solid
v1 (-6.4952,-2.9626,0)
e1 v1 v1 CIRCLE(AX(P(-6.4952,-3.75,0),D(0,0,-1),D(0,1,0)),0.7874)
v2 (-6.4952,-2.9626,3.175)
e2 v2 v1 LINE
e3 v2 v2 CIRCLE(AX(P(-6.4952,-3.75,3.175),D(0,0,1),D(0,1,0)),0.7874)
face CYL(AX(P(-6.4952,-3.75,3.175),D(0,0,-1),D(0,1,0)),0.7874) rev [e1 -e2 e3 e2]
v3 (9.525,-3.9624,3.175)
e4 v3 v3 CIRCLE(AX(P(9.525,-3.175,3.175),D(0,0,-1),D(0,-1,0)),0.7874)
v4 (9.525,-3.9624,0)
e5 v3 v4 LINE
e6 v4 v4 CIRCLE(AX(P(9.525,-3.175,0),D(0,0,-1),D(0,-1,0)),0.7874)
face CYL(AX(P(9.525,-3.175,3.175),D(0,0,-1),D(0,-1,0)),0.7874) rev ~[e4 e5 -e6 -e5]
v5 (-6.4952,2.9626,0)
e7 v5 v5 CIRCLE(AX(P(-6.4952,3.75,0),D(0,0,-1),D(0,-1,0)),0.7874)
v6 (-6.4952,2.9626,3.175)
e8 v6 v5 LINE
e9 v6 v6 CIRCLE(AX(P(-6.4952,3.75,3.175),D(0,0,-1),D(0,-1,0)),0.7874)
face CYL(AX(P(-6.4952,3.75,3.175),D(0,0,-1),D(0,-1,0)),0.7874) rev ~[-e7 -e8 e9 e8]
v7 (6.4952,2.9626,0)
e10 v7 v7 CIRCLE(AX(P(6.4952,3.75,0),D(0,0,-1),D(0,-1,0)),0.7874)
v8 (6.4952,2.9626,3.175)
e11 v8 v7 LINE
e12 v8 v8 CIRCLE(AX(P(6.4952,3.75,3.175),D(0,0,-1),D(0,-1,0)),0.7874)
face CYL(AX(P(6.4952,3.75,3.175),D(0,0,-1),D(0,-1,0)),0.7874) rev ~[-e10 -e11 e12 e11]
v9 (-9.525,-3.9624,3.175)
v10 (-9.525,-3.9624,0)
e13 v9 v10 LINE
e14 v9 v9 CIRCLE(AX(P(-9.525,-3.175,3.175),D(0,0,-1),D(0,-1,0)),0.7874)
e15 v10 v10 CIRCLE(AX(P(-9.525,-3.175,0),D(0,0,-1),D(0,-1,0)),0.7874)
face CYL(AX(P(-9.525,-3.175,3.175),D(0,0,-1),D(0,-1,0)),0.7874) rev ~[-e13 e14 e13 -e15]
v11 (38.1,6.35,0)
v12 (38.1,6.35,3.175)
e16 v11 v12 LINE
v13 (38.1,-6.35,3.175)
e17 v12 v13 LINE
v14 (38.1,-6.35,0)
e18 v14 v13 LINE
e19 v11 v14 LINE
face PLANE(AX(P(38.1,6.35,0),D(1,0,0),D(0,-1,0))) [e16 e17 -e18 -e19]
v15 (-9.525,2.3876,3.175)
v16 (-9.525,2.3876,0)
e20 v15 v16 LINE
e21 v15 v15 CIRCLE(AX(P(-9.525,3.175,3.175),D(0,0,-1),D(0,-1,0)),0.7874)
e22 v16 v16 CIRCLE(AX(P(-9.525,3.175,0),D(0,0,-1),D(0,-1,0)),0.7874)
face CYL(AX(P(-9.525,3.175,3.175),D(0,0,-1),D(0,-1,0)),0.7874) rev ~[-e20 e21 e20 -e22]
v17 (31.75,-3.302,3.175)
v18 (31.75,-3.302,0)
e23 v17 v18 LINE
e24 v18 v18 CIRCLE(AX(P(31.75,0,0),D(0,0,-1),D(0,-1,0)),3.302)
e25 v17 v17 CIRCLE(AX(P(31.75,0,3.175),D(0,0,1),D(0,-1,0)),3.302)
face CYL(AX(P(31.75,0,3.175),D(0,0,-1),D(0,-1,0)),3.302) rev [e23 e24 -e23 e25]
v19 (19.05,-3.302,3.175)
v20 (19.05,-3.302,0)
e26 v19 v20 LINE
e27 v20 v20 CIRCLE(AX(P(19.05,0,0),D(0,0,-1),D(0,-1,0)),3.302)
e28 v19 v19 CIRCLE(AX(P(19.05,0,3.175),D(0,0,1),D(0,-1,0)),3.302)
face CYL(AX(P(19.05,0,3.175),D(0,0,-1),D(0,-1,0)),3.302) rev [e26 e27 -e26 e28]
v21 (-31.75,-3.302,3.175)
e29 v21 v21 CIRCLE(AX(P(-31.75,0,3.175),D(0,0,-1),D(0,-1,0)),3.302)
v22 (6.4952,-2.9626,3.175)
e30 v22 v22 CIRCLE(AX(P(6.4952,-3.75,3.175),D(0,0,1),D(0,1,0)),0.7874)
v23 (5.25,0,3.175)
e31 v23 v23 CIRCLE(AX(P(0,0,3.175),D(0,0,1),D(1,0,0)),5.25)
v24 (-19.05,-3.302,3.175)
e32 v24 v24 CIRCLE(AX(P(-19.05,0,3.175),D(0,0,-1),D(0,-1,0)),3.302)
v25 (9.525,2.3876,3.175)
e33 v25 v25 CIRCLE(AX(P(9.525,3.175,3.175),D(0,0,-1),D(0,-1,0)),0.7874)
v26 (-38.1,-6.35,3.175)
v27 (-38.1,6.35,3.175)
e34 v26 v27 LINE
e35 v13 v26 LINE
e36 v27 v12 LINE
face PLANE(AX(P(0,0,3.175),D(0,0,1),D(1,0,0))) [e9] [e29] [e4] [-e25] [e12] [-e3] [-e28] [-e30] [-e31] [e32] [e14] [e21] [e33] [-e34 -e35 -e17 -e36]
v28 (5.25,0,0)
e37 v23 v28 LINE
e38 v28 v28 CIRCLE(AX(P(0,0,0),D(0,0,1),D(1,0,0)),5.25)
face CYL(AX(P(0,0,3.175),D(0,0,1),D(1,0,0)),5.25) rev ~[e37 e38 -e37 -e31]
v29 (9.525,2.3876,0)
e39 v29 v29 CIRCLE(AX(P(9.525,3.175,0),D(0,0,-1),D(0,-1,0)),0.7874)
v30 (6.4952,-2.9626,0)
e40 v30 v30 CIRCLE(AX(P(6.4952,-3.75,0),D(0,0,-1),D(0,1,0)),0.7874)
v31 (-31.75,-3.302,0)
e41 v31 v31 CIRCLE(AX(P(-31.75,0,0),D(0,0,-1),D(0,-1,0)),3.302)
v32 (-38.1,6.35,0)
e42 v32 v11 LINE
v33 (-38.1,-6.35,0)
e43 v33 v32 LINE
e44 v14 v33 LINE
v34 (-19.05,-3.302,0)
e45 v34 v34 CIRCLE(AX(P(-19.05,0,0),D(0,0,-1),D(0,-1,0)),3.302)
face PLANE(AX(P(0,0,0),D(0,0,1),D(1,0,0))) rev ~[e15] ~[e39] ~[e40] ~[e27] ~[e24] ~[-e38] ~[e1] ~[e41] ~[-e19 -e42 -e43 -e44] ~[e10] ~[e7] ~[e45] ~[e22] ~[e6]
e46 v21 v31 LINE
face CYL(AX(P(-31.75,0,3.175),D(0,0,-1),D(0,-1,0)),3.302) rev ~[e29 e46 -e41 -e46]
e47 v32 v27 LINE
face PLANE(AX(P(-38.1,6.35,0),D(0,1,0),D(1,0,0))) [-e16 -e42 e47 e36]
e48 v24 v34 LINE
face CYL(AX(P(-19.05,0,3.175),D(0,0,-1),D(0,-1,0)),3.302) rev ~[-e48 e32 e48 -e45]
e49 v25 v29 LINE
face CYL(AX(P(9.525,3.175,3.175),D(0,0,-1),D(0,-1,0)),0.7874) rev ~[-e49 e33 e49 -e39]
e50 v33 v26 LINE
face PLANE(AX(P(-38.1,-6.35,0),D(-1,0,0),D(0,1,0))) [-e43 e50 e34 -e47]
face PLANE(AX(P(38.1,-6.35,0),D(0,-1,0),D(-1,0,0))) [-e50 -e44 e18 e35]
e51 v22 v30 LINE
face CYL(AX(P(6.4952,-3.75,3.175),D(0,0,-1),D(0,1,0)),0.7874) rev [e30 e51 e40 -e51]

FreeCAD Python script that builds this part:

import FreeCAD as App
import Part
import Sketcher
Q = App.Units.Quantity

doc = App.newDocument("Part")
body = doc.addObject("PartDesign::Body", "Body")

# Sketch on XY plane
sketch1 = doc.addObject("Sketcher::SketchObject", "Sketch")
body.addObject(sketch1)
sketch1.AttachmentSupport = (doc.XY_Plane, [""])
sketch1.MapMode = "FlatFace"
sketch1.addGeometry([
    Part.LineSegment(App.Vector(38.1, 6.35, 0), App.Vector(-38.1, 6.35, 0)),
    Part.LineSegment(App.Vector(-38.1, 6.35, 0), App.Vector(-38.1, -6.35, 0)),
    Part.LineSegment(App.Vector(-38.1, -6.35, 0), App.Vector(38.1, -6.35, 0)),
    Part.LineSegment(App.Vector(38.1, -6.35, 0), App.Vector(38.1, 6.35, 0)),
], False)
sketch1.addConstraint([
    Sketcher.Constraint("Coincident", 0, 2, 1, 1),
    Sketcher.Constraint("Coincident", 1, 2, 2, 1),
    Sketcher.Constraint("Coincident", 2, 2, 3, 1),
    Sketcher.Constraint("Coincident", 3, 2, 0, 1),
    Sketcher.Constraint("Horizontal", 0),
    Sketcher.Constraint("Vertical", 1),
    Sketcher.Constraint("Horizontal", 2),
    Sketcher.Constraint("Vertical", 3),
    Sketcher.Constraint("Symmetric", 0, 2, 2, 2, -1, 1),
    Sketcher.Constraint("DistanceX", 0, 2, 0, 1, Q("3 in")),
    Sketcher.Constraint("DistanceY", 1, 2, 1, 1, Q("0.5 in")),
])
pad1 = doc.addObject("PartDesign::Pad", "Pad")
body.addObject(pad1)
pad1.Profile = sketch1
pad1.Length = Q("0.125 in")

# Sketch on XY plane
sketch2 = doc.addObject("Sketcher::SketchObject", "Sketch001")
body.addObject(sketch2)
sketch2.AttachmentSupport = (doc.XY_Plane, [""])
sketch2.MapMode = "FlatFace"
sketch2.AttachmentOffset = App.Placement(App.Vector(0, 0, 0.125 * 25.4), App.Rotation())
sketch2.addGeometry(Part.Circle(App.Vector(0, 0, 0), App.Vector(0, 0, 1), 5.25), False)
sketch2.addConstraint([
    Sketcher.Constraint("Coincident", 0, 3, -1, 1),
    Sketcher.Constraint("Diameter", 0, 10.5),
])
pocket1 = doc.addObject("PartDesign::Pocket", "Pocket")
body.addObject(pocket1)
pocket1.Profile = sketch2
pocket1.Type = "ThroughAll"

# Sketch on XY plane
sketch3 = doc.addObject("Sketcher::SketchObject", "Sketch002")
body.addObject(sketch3)
sketch3.AttachmentSupport = (doc.XY_Plane, [""])
sketch3.MapMode = "FlatFace"
sketch3.AttachmentOffset = App.Placement(App.Vector(0, 0, 0.125 * 25.4), App.Rotation())
sketch3.addGeometry([
    Part.Circle(App.Vector(-6.4952, 3.75, 0), App.Vector(0, 0, 1), 0.7874),
    Part.Circle(App.Vector(6.4952, 3.75, 0), App.Vector(0, 0, 1), 0.7874),
], False)
sketch3.addConstraint([
    Sketcher.Constraint("Equal", 0, 1),
    Sketcher.Constraint("Symmetric", 0, 3, 1, 3, -2),
    Sketcher.Constraint("Diameter", 0, Q("0.062 in")),
    Sketcher.Constraint("DistanceX", 0, 3, -1, 1, 6.4952),
    Sketcher.Constraint("DistanceY", -1, 1, 0, 3, 3.75),
])
doc.recompute()
hole = doc.addObject("PartDesign::Hole", "Hole")
body.addObject(hole)
hole.Profile = sketch3
hole.ThreadType = "None"
hole.Diameter = Q("0.062 in")
hole.DepthType = "ThroughAll"
doc.recompute()

mirrored = doc.addObject("PartDesign::Mirrored", "Mirrored")
body.addObject(mirrored)
mirrored.Originals = [hole]
mirrored.MirrorPlane = (doc.XZ_Plane, [""])
body.Tip = mirrored

# Sketch on XY plane
sketch4 = doc.addObject("Sketcher::SketchObject", "Sketch003")
body.addObject(sketch4)
sketch4.AttachmentSupport = (doc.XY_Plane, [""])
sketch4.MapMode = "FlatFace"
sketch4.AttachmentOffset = App.Placement(App.Vector(0, 0, 0.125 * 25.4), App.Rotation())
sketch4.addGeometry([
    Part.Circle(App.Vector(-31.75, 0, 0), App.Vector(0, 0, 1), 3.302),
    Part.Circle(App.Vector(-19.05, 0, 0), App.Vector(0, 0, 1), 3.302),
], False)
sketch4.addConstraint([
    Sketcher.Constraint("Equal", 0, 1),
    Sketcher.Constraint("PointOnObject", 0, 3, -1),
    Sketcher.Constraint("PointOnObject", 1, 3, -1),
    Sketcher.Constraint("Diameter", 0, Q("0.26 in")),
    Sketcher.Constraint("DistanceX", 0, 3, 1, 3, Q("0.5 in")),
    Sketcher.Constraint("DistanceX", 0, 3, -1, 1, Q("1.25 in")),
])
doc.recompute()
hole2 = doc.addObject("PartDesign::Hole", "Hole001")
body.addObject(hole2)
hole2.Profile = sketch4
hole2.ThreadType = "None"
hole2.Diameter = Q("0.26 in")
hole2.DepthType = "ThroughAll"
doc.recompute()

mirrored2 = doc.addObject("PartDesign::Mirrored", "Mirrored001")
body.addObject(mirrored2)
mirrored2.Originals = [hole2]
mirrored2.MirrorPlane = (doc.YZ_Plane, [""])
body.Tip = mirrored2

# Sketch on XY plane
sketch5 = doc.addObject("Sketcher::SketchObject", "Sketch004")
body.addObject(sketch5)
sketch5.AttachmentSupport = (doc.XY_Plane, [""])
sketch5.MapMode = "FlatFace"
sketch5.AttachmentOffset = App.Placement(App.Vector(0, 0, 0.125 * 25.4), App.Rotation())
sketch5.addGeometry([
    Part.Circle(App.Vector(-9.525, 3.175, 0), App.Vector(0, 0, 1), 0.7874),
    Part.Circle(App.Vector(-9.525, -3.175, 0), App.Vector(0, 0, 1), 0.7874),
    Part.Circle(App.Vector(9.525, -3.175, 0), App.Vector(0, 0, 1), 0.7874),
    Part.Circle(App.Vector(9.525, 3.175, 0), App.Vector(0, 0, 1), 0.7874),
], False)
sketch5.addConstraint([
    Sketcher.Constraint("Equal", 0, 1),
    Sketcher.Constraint("Equal", 1, 2),
    Sketcher.Constraint("Equal", 2, 3),
    Sketcher.Constraint("Symmetric", 0, 3, 2, 3, -1, 1),
    Sketcher.Constraint("Symmetric", 1, 3, 3, 3, -1, 1),
    Sketcher.Constraint("Symmetric", 1, 3, 2, 3, -2),
    Sketcher.Constraint("Diameter", 0, Q("0.062 in")),
    Sketcher.Constraint("DistanceY", 1, 3, 0, 3, Q("0.25 in")),
    Sketcher.Constraint("DistanceX", 1, 3, 2, 3, Q("0.75 in")),
])
doc.recompute()
hole3 = doc.addObject("PartDesign::Hole", "Hole002")
body.addObject(hole3)
hole3.Profile = sketch5
hole3.ThreadType = "None"
hole3.Diameter = Q("0.062 in")
hole3.DepthType = "ThroughAll"

doc.recompute()
